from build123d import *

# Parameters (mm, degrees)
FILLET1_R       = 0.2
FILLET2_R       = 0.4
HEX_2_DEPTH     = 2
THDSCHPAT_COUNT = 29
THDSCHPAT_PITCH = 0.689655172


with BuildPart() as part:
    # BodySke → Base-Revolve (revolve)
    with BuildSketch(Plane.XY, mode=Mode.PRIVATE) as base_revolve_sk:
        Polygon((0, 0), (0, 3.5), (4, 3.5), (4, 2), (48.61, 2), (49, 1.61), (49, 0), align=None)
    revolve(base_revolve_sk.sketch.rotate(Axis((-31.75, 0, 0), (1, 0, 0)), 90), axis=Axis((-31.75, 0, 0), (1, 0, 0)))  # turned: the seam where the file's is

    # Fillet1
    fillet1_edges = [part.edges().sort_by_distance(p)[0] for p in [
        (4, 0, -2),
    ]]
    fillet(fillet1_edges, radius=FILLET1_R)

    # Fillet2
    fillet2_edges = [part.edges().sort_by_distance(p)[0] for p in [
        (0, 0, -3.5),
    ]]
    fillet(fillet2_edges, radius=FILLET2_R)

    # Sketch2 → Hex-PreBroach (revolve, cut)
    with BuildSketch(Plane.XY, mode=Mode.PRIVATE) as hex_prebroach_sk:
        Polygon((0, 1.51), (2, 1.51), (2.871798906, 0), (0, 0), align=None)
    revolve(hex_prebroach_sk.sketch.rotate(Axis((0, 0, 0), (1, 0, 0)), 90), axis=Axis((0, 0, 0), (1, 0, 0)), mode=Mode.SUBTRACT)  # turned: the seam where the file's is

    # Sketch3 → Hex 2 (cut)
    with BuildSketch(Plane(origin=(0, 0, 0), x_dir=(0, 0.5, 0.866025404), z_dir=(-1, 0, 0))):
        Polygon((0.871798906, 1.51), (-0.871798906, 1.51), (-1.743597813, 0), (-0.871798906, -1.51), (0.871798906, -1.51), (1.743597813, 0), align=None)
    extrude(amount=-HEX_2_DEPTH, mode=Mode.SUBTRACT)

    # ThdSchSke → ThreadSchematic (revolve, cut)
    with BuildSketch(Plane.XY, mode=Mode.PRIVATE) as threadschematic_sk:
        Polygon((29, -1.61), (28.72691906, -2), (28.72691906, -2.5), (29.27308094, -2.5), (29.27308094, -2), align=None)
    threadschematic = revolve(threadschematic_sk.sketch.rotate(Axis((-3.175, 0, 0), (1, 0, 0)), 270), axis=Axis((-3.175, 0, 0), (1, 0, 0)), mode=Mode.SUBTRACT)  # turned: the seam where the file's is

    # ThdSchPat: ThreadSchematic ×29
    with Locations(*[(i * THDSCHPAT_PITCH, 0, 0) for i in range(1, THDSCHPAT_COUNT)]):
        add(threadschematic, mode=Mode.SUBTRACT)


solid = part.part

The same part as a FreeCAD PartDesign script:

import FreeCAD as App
import Part
import Sketcher

V = App.Vector
Q = App.Units.Quantity


def edges_at(feature, points):
    """Names of the edges that pass closest to the given points."""
    edges = feature.Shape.Edges
    near = lambda p: min(range(len(edges)), key=lambda i: edges[i].distToShape(Part.Vertex(*p))[0])
    return sorted({f"Edge{near(p) + 1}" for p in points})

doc = App.newDocument("Part")
body = doc.addObject("PartDesign::Body", "Body")

# Sketch on XY plane
sketch1 = body.newObject("Sketcher::SketchObject", "Sketch")
sketch1.AttachmentSupport = (doc.getObject("XY_Plane"), [""])
sketch1.MapMode = "FlatFace"
sketch1.addGeometry(Part.LineSegment(V(0, 3.5, 0), V(0, 0, 0)), False)
sketch1.addGeometry(Part.LineSegment(V(0, 0, 0), V(49, 0, 0)), False)
sketch1.addGeometry(Part.LineSegment(V(49, 0, 0), V(49, 1.61, 0)), False)
sketch1.addGeometry(Part.LineSegment(V(49, 1.61, 0), V(48.61, 2, 0)), False)
sketch1.addGeometry(Part.LineSegment(V(48.61, 2, 0), V(4, 2, 0)), False)
sketch1.addGeometry(Part.LineSegment(V(4, 2, 0), V(4, 3.5, 0)), False)
sketch1.addGeometry(Part.LineSegment(V(4, 3.5, 0), V(0, 3.5, 0)), False)
sketch1.addConstraint(Sketcher.Constraint("Coincident", 0, 2, 1, 1))
sketch1.addConstraint(Sketcher.Constraint("Coincident", 1, 2, 2, 1))
sketch1.addConstraint(Sketcher.Constraint("Coincident", 2, 2, 3, 1))
sketch1.addConstraint(Sketcher.Constraint("Coincident", 3, 2, 4, 1))
sketch1.addConstraint(Sketcher.Constraint("Coincident", 4, 2, 5, 1))
sketch1.addConstraint(Sketcher.Constraint("Coincident", 5, 2, 6, 1))
sketch1.addConstraint(Sketcher.Constraint("Coincident", 6, 2, 0, 1))
sketch1.addConstraint(Sketcher.Constraint("Vertical", 0))
sketch1.addConstraint(Sketcher.Constraint("Horizontal", 1))
sketch1.addConstraint(Sketcher.Constraint("Vertical", 2))
sketch1.addConstraint(Sketcher.Constraint("Horizontal", 4))
sketch1.addConstraint(Sketcher.Constraint("Vertical", 5))
sketch1.addConstraint(Sketcher.Constraint("Horizontal", 6))
sketch1.addConstraint(Sketcher.Constraint("Coincident", 0, 2, -1, 1))
sketch1.addConstraint(Sketcher.Constraint("DistanceX", 1, 1, 1, 2, 49.0))
sketch1.addConstraint(Sketcher.Constraint("DistanceX", 6, 2, 6, 1, 4.0))
sketch1.addConstraint(Sketcher.Constraint("Angle", 3, Q("135 deg")))
sketch1.addConstraint(Sketcher.Constraint("DistanceY", 0, 2, 0, 1, 3.5))
sketch1.addConstraint(Sketcher.Constraint("DistanceY", 5, 1, 5, 2, 1.5))
sketch1.addConstraint(Sketcher.Constraint("DistanceX", 4, 2, 4, 1, 44.61))
revolution = body.newObject("PartDesign::Revolution", "Revolution")
revolution.Profile = sketch1
revolution.ReferenceAxis = (sketch1, ["H_Axis"])
revolution.Angle = 360
doc.recompute()

fillet = body.newObject("PartDesign::Fillet", "Fillet")
fillet.Base = (revolution, edges_at(revolution, [(4, 0, -2)]))
fillet.Radius = 0.2
doc.recompute()

fillet2 = body.newObject("PartDesign::Fillet", "Fillet001")
fillet2.Base = (fillet, edges_at(fillet, [(0, 0, -3.5)]))
fillet2.Radius = 0.4

# Sketch on XY plane
sketch2 = body.newObject("Sketcher::SketchObject", "Sketch001")
sketch2.AttachmentSupport = (doc.getObject("XY_Plane"), [""])
sketch2.MapMode = "FlatFace"
sketch2.addGeometry(Part.LineSegment(V(2, 1.51, 0), V(0, 1.51, 0)), False)
sketch2.addGeometry(Part.LineSegment(V(0, 1.51, 0), V(0, 0, 0)), False)
sketch2.addGeometry(Part.LineSegment(V(0, 0, 0), V(2.871799, 0, 0)), False)
sketch2.addGeometry(Part.LineSegment(V(2.871799, 0, 0), V(2, 1.51, 0)), False)
sketch2.addConstraint(Sketcher.Constraint("Coincident", 0, 2, 1, 1))
sketch2.addConstraint(Sketcher.Constraint("Coincident", 1, 2, 2, 1))
sketch2.addConstraint(Sketcher.Constraint("Coincident", 2, 2, 3, 1))
sketch2.addConstraint(Sketcher.Constraint("Coincident", 3, 2, 0, 1))
sketch2.addConstraint(Sketcher.Constraint("Horizontal", 0))
sketch2.addConstraint(Sketcher.Constraint("Vertical", 1))
sketch2.addConstraint(Sketcher.Constraint("Horizontal", 2))
sketch2.addConstraint(Sketcher.Constraint("Coincident", 1, 2, -1, 1))
sketch2.addConstraint(Sketcher.Constraint("DistanceX", 0, 2, 0, 1, 2.0))
sketch2.addConstraint(Sketcher.Constraint("Angle", 3, Q("120 deg")))
sketch2.addConstraint(Sketcher.Constraint("DistanceY", 1, 2, 1, 1, 1.51))
groove = body.newObject("PartDesign::Groove", "Groove")
groove.Profile = sketch2
groove.ReferenceAxis = (sketch2, ["H_Axis"])
groove.Angle = 360

# Sketch on YZ plane
sketch3 = body.newObject("Sketcher::SketchObject", "Sketch002")
sketch3.AttachmentSupport = (doc.getObject("YZ_Plane"), [""])
sketch3.MapMode = "FlatFace"
sketch3.addGeometry(Part.LineSegment(V(1.743598, 0, 0), V(0.871799, -1.51, 0)), False)
sketch3.addGeometry(Part.LineSegment(V(0.871799, -1.51, 0), V(-0.871799, -1.51, 0)), False)
sketch3.addGeometry(Part.LineSegment(V(-0.871799, -1.51, 0), V(-1.743598, 0, 0)), False)
sketch3.addGeometry(Part.LineSegment(V(-1.743598, 0, 0), V(-0.871799, 1.51, 0)), False)
sketch3.addGeometry(Part.LineSegment(V(-0.871799, 1.51, 0), V(0.871799, 1.51, 0)), False)
sketch3.addGeometry(Part.LineSegment(V(0.871799, 1.51, 0), V(1.743598, 0, 0)), False)
sketch3.addConstraint(Sketcher.Constraint("Coincident", 0, 2, 1, 1))
sketch3.addConstraint(Sketcher.Constraint("Coincident", 1, 2, 2, 1))
sketch3.addConstraint(Sketcher.Constraint("Coincident", 2, 2, 3, 1))
sketch3.addConstraint(Sketcher.Constraint("Coincident", 3, 2, 4, 1))
sketch3.addConstraint(Sketcher.Constraint("Coincident", 4, 2, 5, 1))
sketch3.addConstraint(Sketcher.Constraint("Coincident", 5, 2, 0, 1))
sketch3.addConstraint(Sketcher.Constraint("Horizontal", 1))
sketch3.addConstraint(Sketcher.Constraint("Horizontal", 4))
sketch3.addConstraint(Sketcher.Constraint("Symmetric", 0, 2, 3, 2, -1, 1))
sketch3.addConstraint(Sketcher.Constraint("Symmetric", 2, 2, 5, 2, -1, 1))
sketch3.addConstraint(Sketcher.Constraint("PointOnObject", 2, 2, -1))
sketch3.addConstraint(Sketcher.Constraint("Parallel", 2, 5))
sketch3.addConstraint(Sketcher.Constraint("Vertical", 1, 2, 3, 2))
sketch3.addConstraint(Sketcher.Constraint("Angle", 0, Q("-120 deg")))
sketch3.addConstraint(Sketcher.Constraint("DistanceY", 0, 2, -1, 1, 1.51))
sketch3.addConstraint(Sketcher.Constraint("DistanceX", -1, 1, 0, 2, 0.871799))
pocket1 = body.newObject("PartDesign::Pocket", "Pocket")
pocket1.Profile = sketch3
pocket1.Length = 2
pocket1.Reversed = True

# Sketch on XY plane
sketch4 = body.newObject("Sketcher::SketchObject", "Sketch003")
sketch4.AttachmentSupport = (doc.getObject("XY_Plane"), [""])
sketch4.MapMode = "FlatFace"
sketch4.addGeometry(Part.LineSegment(V(29, -1.61, 0), V(28.726919, -2, 0)), False)
sketch4.addGeometry(Part.LineSegment(V(28.726919, -2, 0), V(28.726919, -2.5, 0)), False)
sketch4.addGeometry(Part.LineSegment(V(28.726919, -2.5, 0), V(29.273081, -2.5, 0)), False)
sketch4.addGeometry(Part.LineSegment(V(29.273081, -2.5, 0), V(29.273081, -2, 0)), False)
sketch4.addGeometry(Part.LineSegment(V(29.273081, -2, 0), V(29, -1.61, 0)), False)
sketch4.addConstraint(Sketcher.Constraint("Coincident", 0, 2, 1, 1))
sketch4.addConstraint(Sketcher.Constraint("Coincident", 1, 2, 2, 1))
sketch4.addConstraint(Sketcher.Constraint("Coincident", 2, 2, 3, 1))
sketch4.addConstraint(Sketcher.Constraint("Coincident", 3, 2, 4, 1))
sketch4.addConstraint(Sketcher.Constraint("Coincident", 4, 2, 0, 1))
sketch4.addConstraint(Sketcher.Constraint("Vertical", 1))
sketch4.addConstraint(Sketcher.Constraint("Horizontal", 2))
sketch4.addConstraint(Sketcher.Constraint("Vertical", 3))
sketch4.addConstraint(Sketcher.Constraint("Horizontal", 0, 2, 3, 2))
sketch4.addConstraint(Sketcher.Constraint("Equal", 0, 4))
sketch4.addConstraint(Sketcher.Constraint("Angle", 0, Q("-125 deg")))
sketch4.addConstraint(Sketcher.Constraint("DistanceY", 1, 2, 1, 1, 0.5))
sketch4.addConstraint(Sketcher.Constraint("DistanceY", 0, 2, -1, 1, 2.0))
sketch4.addConstraint(Sketcher.Constraint("DistanceX", -1, 1, 4, 2, 29.0))
sketch4.addConstraint(Sketcher.Constraint("DistanceY", 4, 2, -1, 1, 1.61))
groove2 = body.newObject("PartDesign::Groove", "Groove001")
groove2.Profile = sketch4
groove2.ReferenceAxis = (sketch4, ["H_Axis"])
groove2.Angle = 360
doc.recompute()

linearpattern = body.newObject("PartDesign::LinearPattern", "LinearPattern")
linearpattern.Originals = [groove2]
linearpattern.Direction = (doc.getObject("X_Axis"), [""])
linearpattern.Mode = "offset"
linearpattern.Offset = 0.689655
linearpattern.Occurrences = 29
body.Tip = linearpattern

doc.recompute()
